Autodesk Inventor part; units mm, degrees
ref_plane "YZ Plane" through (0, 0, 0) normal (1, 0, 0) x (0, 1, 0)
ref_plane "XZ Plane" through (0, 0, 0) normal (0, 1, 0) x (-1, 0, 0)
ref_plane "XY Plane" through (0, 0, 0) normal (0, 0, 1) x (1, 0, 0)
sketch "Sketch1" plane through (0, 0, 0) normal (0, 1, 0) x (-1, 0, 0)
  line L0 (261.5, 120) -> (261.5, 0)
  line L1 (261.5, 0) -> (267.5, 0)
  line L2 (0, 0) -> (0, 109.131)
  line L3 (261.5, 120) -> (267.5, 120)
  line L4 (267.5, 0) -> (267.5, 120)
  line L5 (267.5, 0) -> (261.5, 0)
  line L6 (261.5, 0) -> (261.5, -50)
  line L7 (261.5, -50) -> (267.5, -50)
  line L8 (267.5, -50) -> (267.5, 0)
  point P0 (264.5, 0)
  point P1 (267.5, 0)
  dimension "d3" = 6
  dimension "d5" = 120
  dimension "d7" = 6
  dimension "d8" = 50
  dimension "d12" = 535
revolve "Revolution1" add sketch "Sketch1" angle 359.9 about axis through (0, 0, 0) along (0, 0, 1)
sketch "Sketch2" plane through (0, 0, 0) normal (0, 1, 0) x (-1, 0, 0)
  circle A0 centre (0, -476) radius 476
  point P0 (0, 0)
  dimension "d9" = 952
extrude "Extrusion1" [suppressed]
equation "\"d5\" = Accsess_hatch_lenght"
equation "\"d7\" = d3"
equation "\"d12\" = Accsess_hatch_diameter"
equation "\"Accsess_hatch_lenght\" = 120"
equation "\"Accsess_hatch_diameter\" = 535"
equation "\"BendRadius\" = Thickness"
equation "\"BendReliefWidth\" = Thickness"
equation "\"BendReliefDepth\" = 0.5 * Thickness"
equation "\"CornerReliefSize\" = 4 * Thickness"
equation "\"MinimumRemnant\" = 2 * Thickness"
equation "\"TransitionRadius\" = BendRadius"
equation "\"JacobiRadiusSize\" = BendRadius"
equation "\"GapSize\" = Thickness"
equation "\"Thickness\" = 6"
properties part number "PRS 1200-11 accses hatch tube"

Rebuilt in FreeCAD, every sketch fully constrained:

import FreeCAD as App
import Part
import Sketcher
from FreeCAD import Vector


def add_polygon(sketch, points):
    """Adds a closed chain of lines whose ends are joined by coincident constraints."""
    first, n = sketch.GeometryCount, len(points)
    for a, b in zip(points, points[1:] + points[:1]):
        sketch.addGeometry(Part.LineSegment(App.Vector(*a, 0), App.Vector(*b, 0)), False)
    for i in range(n):
        sketch.addConstraint(Sketcher.Constraint("Coincident", first + i, 2, first + (i + 1) % n, 1))

doc = App.newDocument("Part")
body = doc.addObject("PartDesign::Body", "Body")

# Sketch on XZ plane
sketch1 = body.newObject("Sketcher::SketchObject", "Sketch")
sketch1.AttachmentSupport = (doc.getObject("XZ_Plane"), [""])
sketch1.MapMode = "FlatFace"
add_polygon(sketch1, [(-268, 120), (-262, 120), (-262, -50), (-268, -50)])  # lines 0-3
sketch1.addConstraint([
    Sketcher.Constraint("Horizontal", 0),
    Sketcher.Constraint("Vertical", 1),
    Sketcher.Constraint("Horizontal", 2),
    Sketcher.Constraint("Vertical", 3),
    Sketcher.Constraint("DistanceX", 0, 1, 0, 2, 6.0),
    Sketcher.Constraint("DistanceY", -1, 1, 0, 2, 120.0),
    Sketcher.Constraint("DistanceY", 1, 2, -1, 1, 50.0),
    Sketcher.Constraint("DistanceX", 0, 2, -1, 1, 261.5),
])
revolution = body.newObject("PartDesign::Revolution", "Revolution")
revolution.Profile = sketch1
revolution.ReferenceAxis = (sketch1, ["V_Axis"])
revolution.Angle = 359.9

doc.recompute()
